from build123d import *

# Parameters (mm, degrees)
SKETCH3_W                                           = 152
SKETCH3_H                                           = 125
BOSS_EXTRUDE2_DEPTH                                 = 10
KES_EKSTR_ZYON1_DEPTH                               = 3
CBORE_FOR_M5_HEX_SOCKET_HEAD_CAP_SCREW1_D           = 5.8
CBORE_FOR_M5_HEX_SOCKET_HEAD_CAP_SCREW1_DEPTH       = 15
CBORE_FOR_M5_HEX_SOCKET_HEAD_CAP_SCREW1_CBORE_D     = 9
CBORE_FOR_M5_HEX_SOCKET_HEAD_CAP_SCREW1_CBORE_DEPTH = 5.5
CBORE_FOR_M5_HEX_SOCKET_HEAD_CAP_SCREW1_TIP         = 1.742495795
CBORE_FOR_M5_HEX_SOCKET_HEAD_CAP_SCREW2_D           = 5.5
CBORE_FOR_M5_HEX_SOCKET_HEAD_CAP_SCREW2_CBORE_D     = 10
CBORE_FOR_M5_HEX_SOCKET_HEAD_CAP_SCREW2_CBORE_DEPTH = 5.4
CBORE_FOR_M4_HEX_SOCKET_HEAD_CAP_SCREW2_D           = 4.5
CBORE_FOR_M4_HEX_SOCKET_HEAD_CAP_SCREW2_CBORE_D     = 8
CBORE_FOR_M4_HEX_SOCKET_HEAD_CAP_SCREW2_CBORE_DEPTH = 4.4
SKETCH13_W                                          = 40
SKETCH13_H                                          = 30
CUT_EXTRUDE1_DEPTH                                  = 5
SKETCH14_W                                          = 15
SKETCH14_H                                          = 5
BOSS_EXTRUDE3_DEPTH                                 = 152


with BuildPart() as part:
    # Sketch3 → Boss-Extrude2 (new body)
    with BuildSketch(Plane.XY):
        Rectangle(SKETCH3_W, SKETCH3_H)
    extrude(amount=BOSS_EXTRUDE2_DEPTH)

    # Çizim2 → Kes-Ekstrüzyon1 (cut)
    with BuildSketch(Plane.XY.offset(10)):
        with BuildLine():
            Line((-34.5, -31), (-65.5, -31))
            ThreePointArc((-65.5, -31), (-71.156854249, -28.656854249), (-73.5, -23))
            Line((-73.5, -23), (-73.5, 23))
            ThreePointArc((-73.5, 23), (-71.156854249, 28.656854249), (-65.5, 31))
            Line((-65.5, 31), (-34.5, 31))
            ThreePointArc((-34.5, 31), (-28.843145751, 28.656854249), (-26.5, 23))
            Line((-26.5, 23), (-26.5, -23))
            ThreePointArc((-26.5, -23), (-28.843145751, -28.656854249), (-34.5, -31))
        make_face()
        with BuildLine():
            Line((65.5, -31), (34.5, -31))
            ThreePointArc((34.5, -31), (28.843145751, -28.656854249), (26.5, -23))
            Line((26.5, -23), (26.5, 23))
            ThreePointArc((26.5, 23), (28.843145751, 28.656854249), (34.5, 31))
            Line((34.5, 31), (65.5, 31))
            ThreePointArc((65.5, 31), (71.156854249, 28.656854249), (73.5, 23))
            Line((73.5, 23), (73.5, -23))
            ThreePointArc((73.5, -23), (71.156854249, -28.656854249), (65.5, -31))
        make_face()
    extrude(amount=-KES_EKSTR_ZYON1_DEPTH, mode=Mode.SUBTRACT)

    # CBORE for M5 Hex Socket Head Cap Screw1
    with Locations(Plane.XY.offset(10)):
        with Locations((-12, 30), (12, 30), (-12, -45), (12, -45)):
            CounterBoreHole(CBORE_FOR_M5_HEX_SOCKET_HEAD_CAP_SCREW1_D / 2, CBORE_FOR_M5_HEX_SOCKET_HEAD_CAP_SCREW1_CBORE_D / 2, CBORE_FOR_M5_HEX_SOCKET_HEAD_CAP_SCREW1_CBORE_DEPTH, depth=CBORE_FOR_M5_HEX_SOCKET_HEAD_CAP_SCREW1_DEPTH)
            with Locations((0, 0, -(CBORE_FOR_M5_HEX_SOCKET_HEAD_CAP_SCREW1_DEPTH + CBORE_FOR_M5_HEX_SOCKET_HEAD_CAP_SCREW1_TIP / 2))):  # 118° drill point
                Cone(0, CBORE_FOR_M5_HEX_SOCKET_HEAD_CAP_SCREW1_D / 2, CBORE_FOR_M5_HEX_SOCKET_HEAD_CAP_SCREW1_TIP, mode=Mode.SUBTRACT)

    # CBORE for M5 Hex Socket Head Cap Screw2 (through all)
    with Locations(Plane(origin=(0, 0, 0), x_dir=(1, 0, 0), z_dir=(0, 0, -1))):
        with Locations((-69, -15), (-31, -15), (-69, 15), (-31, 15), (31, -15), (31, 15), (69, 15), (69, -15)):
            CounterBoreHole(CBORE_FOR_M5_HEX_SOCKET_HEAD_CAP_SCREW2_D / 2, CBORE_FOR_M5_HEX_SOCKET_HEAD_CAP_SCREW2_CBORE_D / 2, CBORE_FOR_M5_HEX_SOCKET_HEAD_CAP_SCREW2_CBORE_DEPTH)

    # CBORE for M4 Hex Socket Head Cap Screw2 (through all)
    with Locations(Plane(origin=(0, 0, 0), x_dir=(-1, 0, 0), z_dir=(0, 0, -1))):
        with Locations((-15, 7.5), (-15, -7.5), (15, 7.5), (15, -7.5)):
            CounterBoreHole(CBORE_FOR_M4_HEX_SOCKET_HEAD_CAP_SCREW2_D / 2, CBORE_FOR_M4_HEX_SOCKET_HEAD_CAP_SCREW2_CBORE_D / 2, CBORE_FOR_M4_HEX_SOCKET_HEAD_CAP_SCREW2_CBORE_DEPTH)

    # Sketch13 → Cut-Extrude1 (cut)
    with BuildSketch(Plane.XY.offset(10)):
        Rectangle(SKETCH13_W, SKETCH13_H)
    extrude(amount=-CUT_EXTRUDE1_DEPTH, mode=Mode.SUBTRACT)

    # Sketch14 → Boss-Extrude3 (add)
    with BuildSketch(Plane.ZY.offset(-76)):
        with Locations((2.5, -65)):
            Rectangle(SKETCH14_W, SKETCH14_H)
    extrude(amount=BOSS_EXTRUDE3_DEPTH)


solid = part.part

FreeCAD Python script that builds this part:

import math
import FreeCAD as App
import Part
import Sketcher
Q = App.Units.Quantity

doc = App.newDocument("Part")
body = doc.addObject("PartDesign::Body", "Body")

sketch1 = doc.addObject("Sketcher::SketchObject", "Sketch")
body.addObject(sketch1)
sketch1.AttachmentSupport = (doc.XY_Plane, [""])
sketch1.MapMode = "FlatFace"
sketch1.addGeometry([
    Part.LineSegment(App.Vector(-76, 62, 0), App.Vector(-76, -62, 0)),
    Part.LineSegment(App.Vector(-76, -62, 0), App.Vector(76, -62, 0)),
    Part.LineSegment(App.Vector(76, -62, 0), App.Vector(76, 62, 0)),
    Part.LineSegment(App.Vector(76, 62, 0), App.Vector(-76, 62, 0)),
], False)
sketch1.addConstraint([
    Sketcher.Constraint("Coincident", 0, 2, 1, 1),
    Sketcher.Constraint("Coincident", 1, 2, 2, 1),
    Sketcher.Constraint("Coincident", 2, 2, 3, 1),
    Sketcher.Constraint("Coincident", 3, 2, 0, 1),
    Sketcher.Constraint("Vertical", 0),
    Sketcher.Constraint("Horizontal", 1),
    Sketcher.Constraint("Vertical", 2),
    Sketcher.Constraint("Horizontal", 3),
    Sketcher.Constraint("Symmetric", 0, 2, 2, 2, -1, 1),
    Sketcher.Constraint("DistanceX", 1, 1, 1, 2, Q("152 mm")),
    Sketcher.Constraint("DistanceY", 0, 2, 0, 1, Q("125 mm")),
])
pad1 = doc.addObject("PartDesign::Pad", "Pad")
body.addObject(pad1)
pad1.Profile = sketch1
pad1.Length = 10

sketch2 = doc.addObject("Sketcher::SketchObject", "Sketch001")
body.addObject(sketch2)
sketch2.AttachmentSupport = (doc.XY_Plane, [""])
sketch2.MapMode = "FlatFace"
sketch2.AttachmentOffset = App.Placement(App.Vector(0, 0, 10), App.Rotation())
sketch2.addGeometry([
    Part.LineSegment(App.Vector(-66, -31, 0), App.Vector(-34, -31, 0)),
    Part.ArcOfCircle(Part.Circle(App.Vector(-35, -23, 0), App.Vector(0, 0, 1), 8), math.radians(-90), math.radians(0)),
    Part.LineSegment(App.Vector(-26, -23, 0), App.Vector(-26, 23, 0)),
    Part.ArcOfCircle(Part.Circle(App.Vector(-35, 23, 0), App.Vector(0, 0, 1), 8), math.radians(0), math.radians(90)),
    Part.LineSegment(App.Vector(-34, 31, 0), App.Vector(-66, 31, 0)),
    Part.ArcOfCircle(Part.Circle(App.Vector(-65, 23, 0), App.Vector(0, 0, 1), 8), math.radians(90), math.radians(180)),
    Part.LineSegment(App.Vector(-74, 23, 0), App.Vector(-74, -23, 0)),
    Part.ArcOfCircle(Part.Circle(App.Vector(-65, -23, 0), App.Vector(0, 0, 1), 8), math.radians(-180), math.radians(-90)),
    Part.LineSegment(App.Vector(34, -31, 0), App.Vector(66, -31, 0)),
    Part.ArcOfCircle(Part.Circle(App.Vector(65, -23, 0), App.Vector(0, 0, 1), 8), math.radians(-90), math.radians(0)),
    Part.LineSegment(App.Vector(74, -23, 0), App.Vector(74, 23, 0)),
    Part.ArcOfCircle(Part.Circle(App.Vector(65, 23, 0), App.Vector(0, 0, 1), 8), math.radians(0), math.radians(90)),
    Part.LineSegment(App.Vector(66, 31, 0), App.Vector(34, 31, 0)),
    Part.ArcOfCircle(Part.Circle(App.Vector(35, 23, 0), App.Vector(0, 0, 1), 8), math.radians(90), math.radians(180)),
    Part.LineSegment(App.Vector(26, 23, 0), App.Vector(26, -23, 0)),
    Part.ArcOfCircle(Part.Circle(App.Vector(35, -23, 0), App.Vector(0, 0, 1), 8), math.radians(-180), math.radians(-90)),
], False)
sketch2.addConstraint([
    Sketcher.Constraint("Tangent", 0, 2, 1, 1),
    Sketcher.Constraint("Tangent", 1, 2, 2, 1),
    Sketcher.Constraint("Tangent", 2, 2, 3, 1),
    Sketcher.Constraint("Tangent", 3, 2, 4, 1),
    Sketcher.Constraint("Tangent", 4, 2, 5, 1),
    Sketcher.Constraint("Tangent", 5, 2, 6, 1),
    Sketcher.Constraint("Tangent", 6, 2, 7, 1),
    Sketcher.Constraint("Tangent", 7, 2, 0, 1),
    Sketcher.Constraint("Tangent", 8, 2, 9, 1),
    Sketcher.Constraint("Tangent", 9, 2, 10, 1),
    Sketcher.Constraint("Tangent", 10, 2, 11, 1),
    Sketcher.Constraint("Tangent", 11, 2, 12, 1),
    Sketcher.Constraint("Tangent", 12, 2, 13, 1),
    Sketcher.Constraint("Tangent", 13, 2, 14, 1),
    Sketcher.Constraint("Tangent", 14, 2, 15, 1),
    Sketcher.Constraint("Tangent", 15, 2, 8, 1),
    Sketcher.Constraint("Horizontal", 0),
    Sketcher.Constraint("Vertical", 2),
    Sketcher.Constraint("Horizontal", 4),
    Sketcher.Constraint("Vertical", 6),
    Sketcher.Constraint("Horizontal", 8),
    Sketcher.Constraint("Vertical", 10),
    Sketcher.Constraint("Horizontal", 12),
    Sketcher.Constraint("Vertical", 14),
    Sketcher.Constraint("Equal", 1, 3),
    Sketcher.Constraint("Equal", 3, 5),
    Sketcher.Constraint("Equal", 5, 7),
    Sketcher.Constraint("Equal", 7, 9),
    Sketcher.Constraint("Equal", 9, 11),
    Sketcher.Constraint("Equal", 11, 13),
    Sketcher.Constraint("Equal", 13, 15),
    Sketcher.Constraint("Symmetric", 5, 3, 9, 3, -1, 1),
    Sketcher.Constraint("Symmetric", 1, 3, 13, 3, -1, 1),
    Sketcher.Constraint("Horizontal", 7, 3, 9, 3),
    Sketcher.Constraint("Radius", 1, Q("8 mm")),
    Sketcher.Constraint("DistanceX", 0, 1, 0, 2, Q("31 mm")),
    Sketcher.Constraint("DistanceY", 2, 1, 2, 2, Q("46 mm")),
    Sketcher.Constraint("DistanceX", 1, 3, 9, 3, Q("100 mm")),
])
pocket1 = doc.addObject("PartDesign::Pocket", "Pocket")
body.addObject(pocket1)
pocket1.Profile = sketch2
pocket1.Length = 3

sketch3 = doc.addObject("Sketcher::SketchObject", "Sketch002")
body.addObject(sketch3)
sketch3.AttachmentSupport = (doc.XY_Plane, [""])
sketch3.MapMode = "FlatFace"
sketch3.AttachmentOffset = App.Placement(App.Vector(0, 0, 10), App.Rotation())
sketch3.addGeometry([
    Part.Circle(App.Vector(-12, 30, 0), App.Vector(0, 0, 1), 2.9),
    Part.Circle(App.Vector(12, 30, 0), App.Vector(0, 0, 1), 2.9),
    Part.Circle(App.Vector(-12, -45, 0), App.Vector(0, 0, 1), 2.9),
    Part.Circle(App.Vector(12, -45, 0), App.Vector(0, 0, 1), 2.9),
], False)
sketch3.addConstraint([
    Sketcher.Constraint("Equal", 0, 1),
    Sketcher.Constraint("Equal", 1, 2),
    Sketcher.Constraint("Equal", 2, 3),
    Sketcher.Constraint("Symmetric", 0, 3, 1, 3, -2),
    Sketcher.Constraint("Symmetric", 2, 3, 3, 3, -2),
    Sketcher.Constraint("Vertical", 0, 3, 2, 3),
    Sketcher.Constraint("Diameter", 0, Q("5.8 mm")),
    Sketcher.Constraint("DistanceX", 0, 3, -1, 1, Q("12 mm")),
    Sketcher.Constraint("DistanceY", -1, 1, 0, 3, Q("30 mm")),
    Sketcher.Constraint("DistanceY", 2, 3, -1, 1, Q("45 mm")),
])
doc.recompute()
hole = doc.addObject("PartDesign::Hole", "Hole")
body.addObject(hole)
hole.Profile = sketch3
hole.ThreadType = "None"
hole.Diameter = 5.8
hole.DepthType = "Dimension"
hole.Depth = 15
hole.DrillPoint = "Angled"
hole.DrillPointAngle = 118
hole.HoleCutType = "Counterbore"
hole.HoleCutDiameter = 9
hole.HoleCutDepth = 5.5

sketch4 = doc.addObject("Sketcher::SketchObject", "Sketch003")
body.addObject(sketch4)
sketch4.AttachmentSupport = (doc.XY_Plane, [""])
sketch4.MapMode = "FlatFace"
sketch4.addGeometry([
    Part.Circle(App.Vector(-69, 15, 0), App.Vector(0, 0, 1), 2.8),
    Part.Circle(App.Vector(-31, 15, 0), App.Vector(0, 0, 1), 2.8),
    Part.Circle(App.Vector(-69, -15, 0), App.Vector(0, 0, 1), 2.8),
    Part.Circle(App.Vector(-31, -15, 0), App.Vector(0, 0, 1), 2.8),
    Part.Circle(App.Vector(31, 15, 0), App.Vector(0, 0, 1), 2.8),
    Part.Circle(App.Vector(31, -15, 0), App.Vector(0, 0, 1), 2.8),
    Part.Circle(App.Vector(69, -15, 0), App.Vector(0, 0, 1), 2.8),
    Part.Circle(App.Vector(69, 15, 0), App.Vector(0, 0, 1), 2.8),
], False)
sketch4.addConstraint([
    Sketcher.Constraint("Equal", 0, 1),
    Sketcher.Constraint("Equal", 1, 2),
    Sketcher.Constraint("Equal", 2, 3),
    Sketcher.Constraint("Equal", 3, 4),
    Sketcher.Constraint("Equal", 4, 5),
    Sketcher.Constraint("Equal", 5, 6),
    Sketcher.Constraint("Equal", 6, 7),
    Sketcher.Constraint("Symmetric", 3, 3, 4, 3, -1, 1),
    Sketcher.Constraint("Symmetric", 1, 3, 5, 3, -1, 1),
    Sketcher.Constraint("Symmetric", 0, 3, 6, 3, -1, 1),
    Sketcher.Constraint("Symmetric", 2, 3, 7, 3, -1, 1),
    Sketcher.Constraint("Symmetric", 1, 3, 4, 3, -2),
    Sketcher.Constraint("Symmetric", 2, 3, 6, 3, -2),
    Sketcher.Constraint("Horizontal", 0, 3, 1, 3),
    Sketcher.Constraint("Diameter", 0, Q("5.5 mm")),
    Sketcher.Constraint("DistanceX", 0, 3, -1, 1, Q("69 mm")),
    Sketcher.Constraint("DistanceY", -1, 1, 0, 3, Q("15 mm")),
    Sketcher.Constraint("DistanceX", 1, 3, -1, 1, Q("31 mm")),
])
doc.recompute()
hole2 = doc.addObject("PartDesign::Hole", "Hole001")
body.addObject(hole2)
hole2.Profile = sketch4
hole2.ThreadType = "None"
hole2.Diameter = 5.5
hole2.DepthType = "ThroughAll"
hole2.HoleCutType = "Counterbore"
hole2.HoleCutDiameter = 10
hole2.HoleCutDepth = 5.4
hole2.Reversed = True

sketch5 = doc.addObject("Sketcher::SketchObject", "Sketch004")
body.addObject(sketch5)
sketch5.AttachmentSupport = (doc.XY_Plane, [""])
sketch5.MapMode = "FlatFace"
sketch5.addGeometry([
    Part.Circle(App.Vector(15, 7.5, 0), App.Vector(0, 0, 1), 2.2),
    Part.Circle(App.Vector(15, -7.5, 0), App.Vector(0, 0, 1), 2.2),
    Part.Circle(App.Vector(-15, 7.5, 0), App.Vector(0, 0, 1), 2.2),
    Part.Circle(App.Vector(-15, -7.5, 0), App.Vector(0, 0, 1), 2.2),
], False)
sketch5.addConstraint([
    Sketcher.Constraint("Equal", 0, 1),
    Sketcher.Constraint("Equal", 1, 2),
    Sketcher.Constraint("Equal", 2, 3),
    Sketcher.Constraint("Symmetric", 1, 3, 2, 3, -1, 1),
    Sketcher.Constraint("Symmetric", 0, 3, 3, 3, -1, 1),
    Sketcher.Constraint("Symmetric", 0, 3, 2, 3, -2),
    Sketcher.Constraint("Diameter", 0, Q("4.5 mm")),
    Sketcher.Constraint("DistanceX", -1, 1, 0, 3, Q("15 mm")),
    Sketcher.Constraint("DistanceY", 1, 3, 0, 3, Q("15 mm")),
])
doc.recompute()
hole3 = doc.addObject("PartDesign::Hole", "Hole002")
body.addObject(hole3)
hole3.Profile = sketch5
hole3.ThreadType = "None"
hole3.Diameter = 4.5
hole3.DepthType = "ThroughAll"
hole3.HoleCutType = "Counterbore"
hole3.HoleCutDiameter = 8
hole3.HoleCutDepth = 4.4
hole3.Reversed = True

sketch6 = doc.addObject("Sketcher::SketchObject", "Sketch005")
body.addObject(sketch6)
sketch6.AttachmentSupport = (doc.XY_Plane, [""])
sketch6.MapMode = "FlatFace"
sketch6.AttachmentOffset = App.Placement(App.Vector(0, 0, 10), App.Rotation())
sketch6.addGeometry([
    Part.LineSegment(App.Vector(-20, 15, 0), App.Vector(-20, -15, 0)),
    Part.LineSegment(App.Vector(-20, -15, 0), App.Vector(20, -15, 0)),
    Part.LineSegment(App.Vector(20, -15, 0), App.Vector(20, 15, 0)),
    Part.LineSegment(App.Vector(20, 15, 0), App.Vector(-20, 15, 0)),
], False)
sketch6.addConstraint([
    Sketcher.Constraint("Coincident", 0, 2, 1, 1),
    Sketcher.Constraint("Coincident", 1, 2, 2, 1),
    Sketcher.Constraint("Coincident", 2, 2, 3, 1),
    Sketcher.Constraint("Coincident", 3, 2, 0, 1),
    Sketcher.Constraint("Vertical", 0),
    Sketcher.Constraint("Horizontal", 1),
    Sketcher.Constraint("Vertical", 2),
    Sketcher.Constraint("Horizontal", 3),
    Sketcher.Constraint("Symmetric", 0, 2, 2, 2, -1, 1),
    Sketcher.Constraint("DistanceX", 1, 1, 1, 2, Q("40 mm")),
    Sketcher.Constraint("DistanceY", 0, 2, 0, 1, Q("30 mm")),
])
pocket2 = doc.addObject("PartDesign::Pocket", "Pocket001")
body.addObject(pocket2)
pocket2.Profile = sketch6
pocket2.Length = 5

sketch7 = doc.addObject("Sketcher::SketchObject", "Sketch006")
body.addObject(sketch7)
sketch7.AttachmentSupport = (doc.YZ_Plane, [""])
sketch7.MapMode = "FlatFace"
sketch7.AttachmentOffset = App.Placement(App.Vector(0, 0, 76), App.Rotation())
sketch7.addGeometry([
    Part.LineSegment(App.Vector(-62, -5, 0), App.Vector(-68, -5, 0)),
    Part.LineSegment(App.Vector(-68, -5, 0), App.Vector(-68, 10, 0)),
    Part.LineSegment(App.Vector(-68, 10, 0), App.Vector(-62, 10, 0)),
    Part.LineSegment(App.Vector(-62, 10, 0), App.Vector(-62, -5, 0)),
], False)
sketch7.addConstraint([
    Sketcher.Constraint("Coincident", 0, 2, 1, 1),
    Sketcher.Constraint("Coincident", 1, 2, 2, 1),
    Sketcher.Constraint("Coincident", 2, 2, 3, 1),
    Sketcher.Constraint("Coincident", 3, 2, 0, 1),
    Sketcher.Constraint("Horizontal", 0),
    Sketcher.Constraint("Vertical", 1),
    Sketcher.Constraint("Horizontal", 2),
    Sketcher.Constraint("Vertical", 3),
    Sketcher.Constraint("DistanceX", 0, 2, 0, 1, Q("5 mm")),
    Sketcher.Constraint("DistanceY", 1, 1, 1, 2, Q("15 mm")),
    Sketcher.Constraint("DistanceY", 0, 2, -1, 1, Q("5 mm")),
    Sketcher.Constraint("DistanceX", 0, 2, -1, 1, Q("67.5 mm")),
])
pad2 = doc.addObject("PartDesign::Pad", "Pad001")
body.addObject(pad2)
pad2.Profile = sketch7
pad2.Length = 152
pad2.Reversed = True

doc.recompute()
